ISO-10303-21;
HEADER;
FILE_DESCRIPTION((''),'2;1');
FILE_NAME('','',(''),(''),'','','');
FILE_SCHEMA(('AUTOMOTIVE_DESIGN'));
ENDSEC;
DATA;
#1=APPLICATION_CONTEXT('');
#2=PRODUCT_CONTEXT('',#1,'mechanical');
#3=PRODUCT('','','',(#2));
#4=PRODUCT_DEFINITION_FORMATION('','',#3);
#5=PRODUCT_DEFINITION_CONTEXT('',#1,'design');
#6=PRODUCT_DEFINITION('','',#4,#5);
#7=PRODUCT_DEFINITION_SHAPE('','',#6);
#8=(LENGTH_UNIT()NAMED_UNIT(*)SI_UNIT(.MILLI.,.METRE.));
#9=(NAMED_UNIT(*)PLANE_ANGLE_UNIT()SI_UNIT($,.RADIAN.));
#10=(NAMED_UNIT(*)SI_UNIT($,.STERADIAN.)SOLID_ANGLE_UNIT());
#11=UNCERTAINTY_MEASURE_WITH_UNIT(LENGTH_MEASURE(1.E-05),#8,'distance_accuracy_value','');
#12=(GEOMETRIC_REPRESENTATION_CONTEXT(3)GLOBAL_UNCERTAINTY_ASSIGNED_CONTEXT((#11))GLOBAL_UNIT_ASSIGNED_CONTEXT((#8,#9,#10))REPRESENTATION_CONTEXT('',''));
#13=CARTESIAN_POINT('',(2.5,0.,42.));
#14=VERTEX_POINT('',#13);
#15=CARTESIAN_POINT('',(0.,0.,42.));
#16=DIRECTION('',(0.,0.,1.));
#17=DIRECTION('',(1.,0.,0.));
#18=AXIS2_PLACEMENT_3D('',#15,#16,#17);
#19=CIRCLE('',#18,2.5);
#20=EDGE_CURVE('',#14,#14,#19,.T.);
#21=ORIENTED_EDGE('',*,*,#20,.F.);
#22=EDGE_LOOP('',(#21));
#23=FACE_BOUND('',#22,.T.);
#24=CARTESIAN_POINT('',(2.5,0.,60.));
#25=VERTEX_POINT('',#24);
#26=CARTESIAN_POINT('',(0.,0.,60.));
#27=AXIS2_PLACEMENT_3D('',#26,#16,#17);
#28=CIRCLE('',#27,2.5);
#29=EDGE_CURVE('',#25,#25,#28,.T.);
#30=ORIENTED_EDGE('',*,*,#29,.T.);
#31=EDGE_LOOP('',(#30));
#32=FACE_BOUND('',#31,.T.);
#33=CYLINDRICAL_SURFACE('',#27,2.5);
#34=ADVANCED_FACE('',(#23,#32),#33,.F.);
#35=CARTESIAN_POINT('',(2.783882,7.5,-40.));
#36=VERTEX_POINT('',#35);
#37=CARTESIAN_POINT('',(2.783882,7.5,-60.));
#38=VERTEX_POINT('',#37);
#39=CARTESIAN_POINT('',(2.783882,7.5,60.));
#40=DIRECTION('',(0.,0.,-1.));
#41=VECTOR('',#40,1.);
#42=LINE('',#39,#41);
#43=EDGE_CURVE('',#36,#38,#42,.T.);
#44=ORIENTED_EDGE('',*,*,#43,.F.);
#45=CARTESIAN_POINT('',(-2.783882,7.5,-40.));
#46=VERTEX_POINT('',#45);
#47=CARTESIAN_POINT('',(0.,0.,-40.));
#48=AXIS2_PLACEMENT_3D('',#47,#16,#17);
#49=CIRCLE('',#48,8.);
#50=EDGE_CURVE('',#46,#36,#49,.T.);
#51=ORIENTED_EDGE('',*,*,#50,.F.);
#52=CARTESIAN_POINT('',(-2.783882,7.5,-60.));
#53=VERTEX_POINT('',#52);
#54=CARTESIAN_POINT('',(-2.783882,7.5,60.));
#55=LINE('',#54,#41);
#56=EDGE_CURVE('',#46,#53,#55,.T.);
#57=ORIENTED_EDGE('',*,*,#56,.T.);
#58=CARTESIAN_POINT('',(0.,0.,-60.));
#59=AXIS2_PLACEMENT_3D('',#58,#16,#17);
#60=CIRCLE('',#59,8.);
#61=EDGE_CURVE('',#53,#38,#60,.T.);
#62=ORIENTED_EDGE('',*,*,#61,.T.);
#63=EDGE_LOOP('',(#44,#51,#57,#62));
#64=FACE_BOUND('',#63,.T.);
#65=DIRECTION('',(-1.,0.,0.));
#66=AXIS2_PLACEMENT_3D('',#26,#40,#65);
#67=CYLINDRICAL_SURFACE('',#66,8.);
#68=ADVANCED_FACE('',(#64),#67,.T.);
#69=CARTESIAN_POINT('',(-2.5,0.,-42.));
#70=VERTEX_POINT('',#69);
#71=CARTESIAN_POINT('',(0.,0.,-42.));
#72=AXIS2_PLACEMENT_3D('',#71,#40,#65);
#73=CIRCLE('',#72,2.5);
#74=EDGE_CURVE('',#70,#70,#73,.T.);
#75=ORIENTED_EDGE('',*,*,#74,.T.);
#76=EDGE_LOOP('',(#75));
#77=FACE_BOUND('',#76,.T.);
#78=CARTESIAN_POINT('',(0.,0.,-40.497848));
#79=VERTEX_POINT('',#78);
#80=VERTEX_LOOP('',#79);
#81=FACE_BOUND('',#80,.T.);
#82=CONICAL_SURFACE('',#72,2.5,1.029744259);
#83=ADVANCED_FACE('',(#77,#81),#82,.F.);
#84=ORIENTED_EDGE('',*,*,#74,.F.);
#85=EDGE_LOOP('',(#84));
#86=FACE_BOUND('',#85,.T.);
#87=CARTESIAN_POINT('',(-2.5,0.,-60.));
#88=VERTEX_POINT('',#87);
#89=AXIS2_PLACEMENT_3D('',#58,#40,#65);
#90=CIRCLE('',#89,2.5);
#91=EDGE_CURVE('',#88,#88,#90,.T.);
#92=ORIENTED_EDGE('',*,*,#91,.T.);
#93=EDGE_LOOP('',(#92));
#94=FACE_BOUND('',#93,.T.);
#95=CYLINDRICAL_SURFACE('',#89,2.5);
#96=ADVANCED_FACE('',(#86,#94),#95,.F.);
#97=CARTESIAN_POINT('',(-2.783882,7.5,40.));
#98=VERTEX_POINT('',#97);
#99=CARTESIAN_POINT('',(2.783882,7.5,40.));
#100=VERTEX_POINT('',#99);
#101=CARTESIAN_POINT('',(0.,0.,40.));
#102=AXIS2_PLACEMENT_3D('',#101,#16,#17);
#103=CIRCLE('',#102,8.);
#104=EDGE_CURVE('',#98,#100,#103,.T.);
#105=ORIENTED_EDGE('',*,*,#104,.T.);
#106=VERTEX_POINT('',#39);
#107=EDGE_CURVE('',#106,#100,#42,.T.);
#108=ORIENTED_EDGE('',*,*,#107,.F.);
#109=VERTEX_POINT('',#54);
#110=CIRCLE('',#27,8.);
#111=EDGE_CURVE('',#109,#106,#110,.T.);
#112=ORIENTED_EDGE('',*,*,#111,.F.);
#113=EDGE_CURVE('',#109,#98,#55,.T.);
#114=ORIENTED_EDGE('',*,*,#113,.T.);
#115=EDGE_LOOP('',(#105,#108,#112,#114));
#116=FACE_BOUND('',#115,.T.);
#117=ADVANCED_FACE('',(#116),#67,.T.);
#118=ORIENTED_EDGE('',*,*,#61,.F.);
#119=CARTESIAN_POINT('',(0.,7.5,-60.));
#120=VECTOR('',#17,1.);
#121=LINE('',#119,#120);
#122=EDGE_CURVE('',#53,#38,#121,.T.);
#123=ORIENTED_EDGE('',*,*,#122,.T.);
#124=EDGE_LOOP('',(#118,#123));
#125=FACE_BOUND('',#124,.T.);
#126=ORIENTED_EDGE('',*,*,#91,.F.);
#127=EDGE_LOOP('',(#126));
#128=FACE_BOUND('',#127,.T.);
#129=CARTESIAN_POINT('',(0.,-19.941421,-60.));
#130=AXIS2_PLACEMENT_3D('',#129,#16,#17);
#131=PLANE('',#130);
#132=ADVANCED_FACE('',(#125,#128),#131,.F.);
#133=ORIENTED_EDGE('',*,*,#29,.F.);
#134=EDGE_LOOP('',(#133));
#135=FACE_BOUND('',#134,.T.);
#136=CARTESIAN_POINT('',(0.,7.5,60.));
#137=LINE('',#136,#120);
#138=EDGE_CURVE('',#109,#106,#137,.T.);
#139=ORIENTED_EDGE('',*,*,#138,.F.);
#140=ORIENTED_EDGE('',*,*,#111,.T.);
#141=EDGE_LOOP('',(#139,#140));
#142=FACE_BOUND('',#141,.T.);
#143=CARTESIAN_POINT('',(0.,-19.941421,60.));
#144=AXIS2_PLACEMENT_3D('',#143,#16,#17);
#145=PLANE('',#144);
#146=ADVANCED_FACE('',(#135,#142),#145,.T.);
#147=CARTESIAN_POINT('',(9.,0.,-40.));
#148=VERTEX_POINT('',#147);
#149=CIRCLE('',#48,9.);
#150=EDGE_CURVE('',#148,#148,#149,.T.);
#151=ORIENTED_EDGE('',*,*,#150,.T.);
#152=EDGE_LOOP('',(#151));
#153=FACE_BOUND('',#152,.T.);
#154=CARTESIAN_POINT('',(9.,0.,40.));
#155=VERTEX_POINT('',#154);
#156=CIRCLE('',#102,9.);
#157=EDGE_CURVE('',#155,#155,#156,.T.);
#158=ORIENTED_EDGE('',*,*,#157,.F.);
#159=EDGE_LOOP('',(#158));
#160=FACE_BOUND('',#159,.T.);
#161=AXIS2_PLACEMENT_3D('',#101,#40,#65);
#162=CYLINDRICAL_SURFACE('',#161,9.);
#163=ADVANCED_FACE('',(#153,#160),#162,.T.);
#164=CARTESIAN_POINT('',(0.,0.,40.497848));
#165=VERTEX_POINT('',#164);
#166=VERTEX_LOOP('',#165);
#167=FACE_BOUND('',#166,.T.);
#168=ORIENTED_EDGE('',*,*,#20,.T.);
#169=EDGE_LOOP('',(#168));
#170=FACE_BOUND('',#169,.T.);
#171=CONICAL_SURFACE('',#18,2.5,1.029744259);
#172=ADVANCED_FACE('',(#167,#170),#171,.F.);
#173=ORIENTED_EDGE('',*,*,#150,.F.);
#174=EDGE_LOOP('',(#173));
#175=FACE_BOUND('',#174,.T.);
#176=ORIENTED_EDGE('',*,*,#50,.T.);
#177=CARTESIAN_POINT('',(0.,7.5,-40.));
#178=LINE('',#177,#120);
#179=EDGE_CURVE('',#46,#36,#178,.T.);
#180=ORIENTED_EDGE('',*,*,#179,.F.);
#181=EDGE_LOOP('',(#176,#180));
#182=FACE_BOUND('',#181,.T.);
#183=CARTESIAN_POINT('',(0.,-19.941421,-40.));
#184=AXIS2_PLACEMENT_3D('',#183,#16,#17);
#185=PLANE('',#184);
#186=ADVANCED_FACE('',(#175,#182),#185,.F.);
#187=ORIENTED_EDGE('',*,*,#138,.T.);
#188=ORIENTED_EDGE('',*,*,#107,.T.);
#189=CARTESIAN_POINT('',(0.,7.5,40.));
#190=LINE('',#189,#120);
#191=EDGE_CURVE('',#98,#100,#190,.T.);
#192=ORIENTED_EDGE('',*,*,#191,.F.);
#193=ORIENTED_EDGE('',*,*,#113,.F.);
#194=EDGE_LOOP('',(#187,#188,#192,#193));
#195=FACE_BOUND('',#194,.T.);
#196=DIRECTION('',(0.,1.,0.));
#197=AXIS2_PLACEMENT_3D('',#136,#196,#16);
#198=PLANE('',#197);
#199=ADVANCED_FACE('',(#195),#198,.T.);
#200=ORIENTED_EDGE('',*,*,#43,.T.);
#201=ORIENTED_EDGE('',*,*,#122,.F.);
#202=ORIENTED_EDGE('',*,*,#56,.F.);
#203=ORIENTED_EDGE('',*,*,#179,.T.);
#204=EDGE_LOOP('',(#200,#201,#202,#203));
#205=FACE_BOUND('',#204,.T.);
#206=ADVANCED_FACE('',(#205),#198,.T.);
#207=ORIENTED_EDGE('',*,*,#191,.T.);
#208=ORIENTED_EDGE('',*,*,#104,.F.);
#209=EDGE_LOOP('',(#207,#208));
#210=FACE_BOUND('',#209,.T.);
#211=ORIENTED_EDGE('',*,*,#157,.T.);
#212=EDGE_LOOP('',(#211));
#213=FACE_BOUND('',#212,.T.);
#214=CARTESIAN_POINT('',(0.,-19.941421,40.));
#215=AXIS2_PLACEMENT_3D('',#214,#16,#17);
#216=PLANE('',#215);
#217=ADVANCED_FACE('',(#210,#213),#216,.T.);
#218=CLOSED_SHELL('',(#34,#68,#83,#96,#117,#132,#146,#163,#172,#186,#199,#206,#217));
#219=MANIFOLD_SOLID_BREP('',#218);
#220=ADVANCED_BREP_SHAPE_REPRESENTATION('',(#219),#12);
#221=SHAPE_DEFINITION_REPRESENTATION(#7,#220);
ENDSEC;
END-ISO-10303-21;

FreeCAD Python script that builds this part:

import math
import FreeCAD as App
import Part
import Sketcher
from FreeCAD import Vector
Q = App.Units.Quantity

doc = App.newDocument("Part")
body = doc.addObject("PartDesign::Body", "Body")

# Sketch on XY plane
sketch1 = doc.addObject("Sketcher::SketchObject", "Sketch")
body.addObject(sketch1)
sketch1.AttachmentSupport = (doc.XY_Plane, [""])
sketch1.MapMode = "FlatFace"
sketch1.addGeometry(Part.LineSegment(Vector(2.783882, 7.5, 0), Vector(-2.783882, 7.5, 0)), False)
sketch1.addGeometry(Part.ArcOfCircle(Part.Circle(Vector(0, 0, 0), Vector(0, 0, 1), 8), math.radians(110.364135), math.radians(360)), False)
sketch1.addGeometry(Part.ArcOfCircle(Part.Circle(Vector(0, 0, 0), Vector(0, 0, 1), 8), math.radians(0), math.radians(69.635865)), False)
sketch1.addConstraint(Sketcher.Constraint("Coincident", 0, 2, 1, 1))
sketch1.addConstraint(Sketcher.Constraint("Tangent", 1, 2, 2, 1))
sketch1.addConstraint(Sketcher.Constraint("Coincident", 2, 2, 0, 1))
sketch1.addConstraint(Sketcher.Constraint("Horizontal", 0))
sketch1.addConstraint(Sketcher.Constraint("Coincident", 1, 3, -1, 1))
sketch1.addConstraint(Sketcher.Constraint("Equal", 1, 2))
sketch1.addConstraint(Sketcher.Constraint("PointOnObject", 1, 2, -1))
sketch1.addConstraint(Sketcher.Constraint("Radius", 1, Q("8 mm")))
sketch1.addConstraint(Sketcher.Constraint("DistanceY", -1, 1, 0, 2, Q("7.5 mm")))
pad1 = doc.addObject("PartDesign::Pad", "Pad")
body.addObject(pad1)
pad1.Profile = sketch1
pad1.Length = 120
pad1.Midplane = True

# Sketch on XY plane
sketch2 = doc.addObject("Sketcher::SketchObject", "Sketch001")
body.addObject(sketch2)
sketch2.AttachmentSupport = (doc.XY_Plane, [""])
sketch2.MapMode = "FlatFace"
sketch2.addGeometry(Part.Circle(Vector(0, 0, 0), Vector(0, 0, 1), 9), False)
sketch2.addConstraint(Sketcher.Constraint("Coincident", 0, 3, -1, 1))
sketch2.addConstraint(Sketcher.Constraint("Diameter", 0, Q("18 mm")))
pad2 = doc.addObject("PartDesign::Pad", "Pad001")
body.addObject(pad2)
pad2.Profile = sketch2
pad2.Length = 80
pad2.Midplane = True

# Sketch on YZ plane
sketch3 = doc.addObject("Sketcher::SketchObject", "Sketch002")
body.addObject(sketch3)
sketch3.AttachmentSupport = (doc.YZ_Plane, [""])
sketch3.MapMode = "FlatFace"
sketch3.addGeometry(Part.LineSegment(Vector(0, 40.497848, 0), Vector(0, 60, 0)), False)
sketch3.addGeometry(Part.LineSegment(Vector(0, 60, 0), Vector(-2.5, 60, 0)), False)
sketch3.addGeometry(Part.LineSegment(Vector(-2.5, 60, 0), Vector(-2.5, 42, 0)), False)
sketch3.addGeometry(Part.LineSegment(Vector(-2.5, 42, 0), Vector(0, 40.497848, 0)), False)
sketch3.addConstraint(Sketcher.Constraint("Coincident", 0, 2, 1, 1))
sketch3.addConstraint(Sketcher.Constraint("Coincident", 1, 2, 2, 1))
sketch3.addConstraint(Sketcher.Constraint("Coincident", 2, 2, 3, 1))
sketch3.addConstraint(Sketcher.Constraint("Coincident", 3, 2, 0, 1))
sketch3.addConstraint(Sketcher.Constraint("Vertical", 0))
sketch3.addConstraint(Sketcher.Constraint("Horizontal", 1))
sketch3.addConstraint(Sketcher.Constraint("Vertical", 2))
sketch3.addConstraint(Sketcher.Constraint("PointOnObject", 0, 2, -2))
sketch3.addConstraint(Sketcher.Constraint("DistanceY", 2, 2, 2, 1, Q("18 mm")))
sketch3.addConstraint(Sketcher.Constraint("Angle", 3, Q("-31 deg")))
sketch3.addConstraint(Sketcher.Constraint("DistanceX", 1, 2, 1, 1, Q("2.5 mm")))
sketch3.addConstraint(Sketcher.Constraint("DistanceY", -1, 1, 0, 2, Q("60 mm")))
groove = doc.addObject("PartDesign::Groove", "Groove")
body.addObject(groove)
groove.Profile = sketch3
groove.ReferenceAxis = (sketch3, ["V_Axis"])
groove.Angle = 360
doc.recompute()

mirrored = doc.addObject("PartDesign::Mirrored", "Mirrored")
body.addObject(mirrored)
mirrored.Originals = [groove]
mirrored.MirrorPlane = (doc.XY_Plane, [""])
body.Tip = mirrored

doc.recompute()
